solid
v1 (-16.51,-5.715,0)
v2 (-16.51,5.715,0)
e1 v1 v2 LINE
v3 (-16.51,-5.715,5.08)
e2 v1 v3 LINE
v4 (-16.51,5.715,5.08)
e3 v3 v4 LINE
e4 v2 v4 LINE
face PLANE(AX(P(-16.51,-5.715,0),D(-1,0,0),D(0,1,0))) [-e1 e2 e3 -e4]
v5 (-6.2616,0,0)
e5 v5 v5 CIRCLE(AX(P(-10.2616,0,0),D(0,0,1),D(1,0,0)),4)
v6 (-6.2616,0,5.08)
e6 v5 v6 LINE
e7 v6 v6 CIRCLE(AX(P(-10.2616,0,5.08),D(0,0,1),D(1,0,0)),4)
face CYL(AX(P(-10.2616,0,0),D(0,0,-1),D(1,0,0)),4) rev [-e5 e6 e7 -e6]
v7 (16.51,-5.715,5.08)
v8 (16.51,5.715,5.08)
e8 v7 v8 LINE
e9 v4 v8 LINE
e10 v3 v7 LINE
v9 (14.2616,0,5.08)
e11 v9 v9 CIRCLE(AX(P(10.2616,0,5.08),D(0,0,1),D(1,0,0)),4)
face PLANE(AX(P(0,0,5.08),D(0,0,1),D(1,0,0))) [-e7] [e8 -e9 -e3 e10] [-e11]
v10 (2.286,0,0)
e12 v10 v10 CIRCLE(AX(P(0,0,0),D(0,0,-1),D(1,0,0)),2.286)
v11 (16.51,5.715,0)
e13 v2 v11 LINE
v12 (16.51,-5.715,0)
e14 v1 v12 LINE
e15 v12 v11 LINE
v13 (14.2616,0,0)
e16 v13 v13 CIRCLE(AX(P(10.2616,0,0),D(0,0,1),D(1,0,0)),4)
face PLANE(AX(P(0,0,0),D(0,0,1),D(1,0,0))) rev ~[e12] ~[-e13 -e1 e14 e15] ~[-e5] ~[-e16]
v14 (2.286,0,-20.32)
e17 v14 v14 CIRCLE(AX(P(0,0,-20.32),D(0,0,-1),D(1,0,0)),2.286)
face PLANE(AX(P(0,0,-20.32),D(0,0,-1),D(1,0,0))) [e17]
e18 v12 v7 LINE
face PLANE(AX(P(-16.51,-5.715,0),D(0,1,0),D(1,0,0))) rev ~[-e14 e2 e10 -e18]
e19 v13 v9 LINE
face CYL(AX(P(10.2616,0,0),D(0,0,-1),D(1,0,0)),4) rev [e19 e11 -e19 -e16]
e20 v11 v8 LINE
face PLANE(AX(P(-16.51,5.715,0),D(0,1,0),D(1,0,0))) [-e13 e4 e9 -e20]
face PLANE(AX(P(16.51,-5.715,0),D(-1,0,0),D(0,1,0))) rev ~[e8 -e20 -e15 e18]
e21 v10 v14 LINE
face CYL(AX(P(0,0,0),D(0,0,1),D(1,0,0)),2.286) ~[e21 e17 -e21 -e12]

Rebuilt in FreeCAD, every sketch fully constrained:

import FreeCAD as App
import Part
import Sketcher

V = App.Vector
Q = App.Units.Quantity

doc = App.newDocument("Part")
body = doc.addObject("PartDesign::Body", "Body")

sketch1 = doc.addObject("Sketcher::SketchObject", "Sketch")
body.addObject(sketch1)
sketch1.AttachmentSupport = (doc.XY_Plane, [""])
sketch1.MapMode = "FlatFace"
sketch1.addGeometry(Part.LineSegment(V(-16.51, 5.715, 0), V(-16.51, -5.715, 0)), False)
sketch1.addGeometry(Part.LineSegment(V(-16.51, -5.715, 0), V(16.51, -5.715, 0)), False)
sketch1.addGeometry(Part.LineSegment(V(16.51, -5.715, 0), V(16.51, 5.715, 0)), False)
sketch1.addGeometry(Part.LineSegment(V(16.51, 5.715, 0), V(-16.51, 5.715, 0)), False)
sketch1.addGeometry(Part.Circle(V(-10.2616, 0, 0), V(0, 0, 1), 4), False)
sketch1.addGeometry(Part.Circle(V(10.2616, 0, 0), V(0, 0, 1), 4), False)
sketch1.addConstraint(Sketcher.Constraint("Coincident", 0, 2, 1, 1))
sketch1.addConstraint(Sketcher.Constraint("Coincident", 1, 2, 2, 1))
sketch1.addConstraint(Sketcher.Constraint("Coincident", 2, 2, 3, 1))
sketch1.addConstraint(Sketcher.Constraint("Coincident", 3, 2, 0, 1))
sketch1.addConstraint(Sketcher.Constraint("Vertical", 0))
sketch1.addConstraint(Sketcher.Constraint("Horizontal", 1))
sketch1.addConstraint(Sketcher.Constraint("Vertical", 2))
sketch1.addConstraint(Sketcher.Constraint("Horizontal", 3))
sketch1.addConstraint(Sketcher.Constraint("Equal", 4, 5))
sketch1.addConstraint(Sketcher.Constraint("Symmetric", 4, 3, 5, 3, -1, 1))
sketch1.addConstraint(Sketcher.Constraint("Symmetric", 0, 2, 2, 2, -1, 1))
sketch1.addConstraint(Sketcher.Constraint("PointOnObject", 4, 3, -1))
sketch1.addConstraint(Sketcher.Constraint("DistanceX", 1, 1, 1, 2, Q("1.3 in")))
sketch1.addConstraint(Sketcher.Constraint("DistanceY", 0, 2, 0, 1, Q("0.45 in")))
sketch1.addConstraint(Sketcher.Constraint("Diameter", 4, 8.0))
sketch1.addConstraint(Sketcher.Constraint("DistanceX", 4, 3, -1, 1, Q("0.404 in")))
pad1 = doc.addObject("PartDesign::Pad", "Pad")
body.addObject(pad1)
pad1.Profile = sketch1
pad1.Length = Q("0.2 in")

sketch2 = doc.addObject("Sketcher::SketchObject", "Sketch001")
body.addObject(sketch2)
sketch2.AttachmentSupport = (doc.XY_Plane, [""])
sketch2.MapMode = "FlatFace"
sketch2.addGeometry(Part.Circle(V(0, 0, 0), V(0, 0, 1), 2.286), False)
sketch2.addConstraint(Sketcher.Constraint("Coincident", 0, 3, -1, 1))
sketch2.addConstraint(Sketcher.Constraint("Diameter", 0, Q("0.18 in")))
pad2 = doc.addObject("PartDesign::Pad", "Pad001")
body.addObject(pad2)
pad2.Profile = sketch2
pad2.Length = Q("0.8 in")
pad2.Reversed = True

doc.recompute()
